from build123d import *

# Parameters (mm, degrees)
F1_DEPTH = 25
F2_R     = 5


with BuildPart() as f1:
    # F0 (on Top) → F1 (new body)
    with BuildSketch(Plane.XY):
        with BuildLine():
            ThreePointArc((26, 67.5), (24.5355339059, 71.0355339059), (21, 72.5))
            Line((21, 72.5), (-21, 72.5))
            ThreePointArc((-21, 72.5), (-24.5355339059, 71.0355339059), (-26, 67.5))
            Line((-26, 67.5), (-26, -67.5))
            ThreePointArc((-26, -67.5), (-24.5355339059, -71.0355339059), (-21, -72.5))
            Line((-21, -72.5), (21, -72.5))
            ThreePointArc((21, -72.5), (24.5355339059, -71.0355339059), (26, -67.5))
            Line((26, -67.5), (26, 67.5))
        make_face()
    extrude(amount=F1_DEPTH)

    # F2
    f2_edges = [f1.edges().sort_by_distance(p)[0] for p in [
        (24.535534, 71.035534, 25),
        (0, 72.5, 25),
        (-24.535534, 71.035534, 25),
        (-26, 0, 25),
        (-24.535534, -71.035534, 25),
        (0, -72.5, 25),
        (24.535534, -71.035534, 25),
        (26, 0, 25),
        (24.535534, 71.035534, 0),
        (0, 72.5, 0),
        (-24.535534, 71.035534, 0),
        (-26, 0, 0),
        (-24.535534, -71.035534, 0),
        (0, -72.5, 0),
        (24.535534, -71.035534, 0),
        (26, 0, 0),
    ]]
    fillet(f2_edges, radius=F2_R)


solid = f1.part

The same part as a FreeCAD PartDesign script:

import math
import FreeCAD as App
import Part
import Sketcher

V = App.Vector


def edges_at(feature, points):
    """Names of the edges that pass closest to the given points."""
    edges = feature.Shape.Edges
    near = lambda p: min(range(len(edges)), key=lambda i: edges[i].distToShape(Part.Vertex(*p))[0])
    return sorted({f"Edge{near(p) + 1}" for p in points})

doc = App.newDocument("Part")
body = doc.addObject("PartDesign::Body", "Body")

# Sketch on XY plane
sketch1 = body.newObject("Sketcher::SketchObject", "Sketch")
sketch1.AttachmentSupport = (doc.getObject("XY_Plane"), [""])
sketch1.MapMode = "FlatFace"
sketch1.addGeometry([
    Part.ArcOfCircle(Part.Circle(V(21, 68, 0), V(0, 0, 1), 5), math.radians(0), math.radians(90)),  # 0
    Part.LineSegment(V(21, 72, 0), V(-21, 72, 0)),  # 1
    Part.ArcOfCircle(Part.Circle(V(-21, 68, 0), V(0, 0, 1), 5), math.radians(90), math.radians(180)),  # 2
    Part.LineSegment(V(-26, 68, 0), V(-26, -68, 0)),  # 3
    Part.ArcOfCircle(Part.Circle(V(-21, -68, 0), V(0, 0, 1), 5), math.radians(180), math.radians(270)),  # 4
    Part.LineSegment(V(-21, -72, 0), V(21, -72, 0)),  # 5
    Part.ArcOfCircle(Part.Circle(V(21, -68, 0), V(0, 0, 1), 5), math.radians(-90), math.radians(0)),  # 6
    Part.LineSegment(V(26, -68, 0), V(26, 68, 0)),  # 7
], False)
sketch1.addConstraint([
    Sketcher.Constraint("Tangent", 0, 2, 1, 1),
    Sketcher.Constraint("Tangent", 1, 2, 2, 1),
    Sketcher.Constraint("Tangent", 2, 2, 3, 1),
    Sketcher.Constraint("Tangent", 3, 2, 4, 1),
    Sketcher.Constraint("Tangent", 4, 2, 5, 1),
    Sketcher.Constraint("Tangent", 5, 2, 6, 1),
    Sketcher.Constraint("Tangent", 6, 2, 7, 1),
    Sketcher.Constraint("Tangent", 7, 2, 0, 1),
    Sketcher.Constraint("Horizontal", 1),
    Sketcher.Constraint("Vertical", 3),
    Sketcher.Constraint("Horizontal", 5),
    Sketcher.Constraint("Vertical", 7),
    Sketcher.Constraint("Equal", 0, 2),
    Sketcher.Constraint("Equal", 2, 4),
    Sketcher.Constraint("Equal", 4, 6),
    Sketcher.Constraint("Symmetric", 0, 3, 4, 3, -1, 1),
    Sketcher.Constraint("Radius", 0, 5.0),
    Sketcher.Constraint("DistanceX", 1, 2, 1, 1, 42.0),
    Sketcher.Constraint("DistanceY", 3, 2, 3, 1, 135.0),
])
pad1 = body.newObject("PartDesign::Pad", "Pad")
pad1.Profile = sketch1
pad1.Length = 25
doc.recompute()

fillet = body.newObject("PartDesign::Fillet", "Fillet")
fillet.Base = (pad1, edges_at(pad1, [
    (24.536, 71.036, 25),
    (0, 72.5, 25),
    (-24.536, 71.036, 25),
    (-26, 0, 25),
    (-24.536, -71.036, 25),
    (0, -72.5, 25),
    (24.536, -71.036, 25),
    (26, 0, 25),
    (24.536, 71.036, 0),
    (0, 72.5, 0),
    (-24.536, 71.036, 0),
    (-26, 0, 0),
    (-24.536, -71.036, 0),
    (0, -72.5, 0),
    (24.536, -71.036, 0),
    (26, 0, 0),
]))
fillet.Radius = 5

doc.recompute()
